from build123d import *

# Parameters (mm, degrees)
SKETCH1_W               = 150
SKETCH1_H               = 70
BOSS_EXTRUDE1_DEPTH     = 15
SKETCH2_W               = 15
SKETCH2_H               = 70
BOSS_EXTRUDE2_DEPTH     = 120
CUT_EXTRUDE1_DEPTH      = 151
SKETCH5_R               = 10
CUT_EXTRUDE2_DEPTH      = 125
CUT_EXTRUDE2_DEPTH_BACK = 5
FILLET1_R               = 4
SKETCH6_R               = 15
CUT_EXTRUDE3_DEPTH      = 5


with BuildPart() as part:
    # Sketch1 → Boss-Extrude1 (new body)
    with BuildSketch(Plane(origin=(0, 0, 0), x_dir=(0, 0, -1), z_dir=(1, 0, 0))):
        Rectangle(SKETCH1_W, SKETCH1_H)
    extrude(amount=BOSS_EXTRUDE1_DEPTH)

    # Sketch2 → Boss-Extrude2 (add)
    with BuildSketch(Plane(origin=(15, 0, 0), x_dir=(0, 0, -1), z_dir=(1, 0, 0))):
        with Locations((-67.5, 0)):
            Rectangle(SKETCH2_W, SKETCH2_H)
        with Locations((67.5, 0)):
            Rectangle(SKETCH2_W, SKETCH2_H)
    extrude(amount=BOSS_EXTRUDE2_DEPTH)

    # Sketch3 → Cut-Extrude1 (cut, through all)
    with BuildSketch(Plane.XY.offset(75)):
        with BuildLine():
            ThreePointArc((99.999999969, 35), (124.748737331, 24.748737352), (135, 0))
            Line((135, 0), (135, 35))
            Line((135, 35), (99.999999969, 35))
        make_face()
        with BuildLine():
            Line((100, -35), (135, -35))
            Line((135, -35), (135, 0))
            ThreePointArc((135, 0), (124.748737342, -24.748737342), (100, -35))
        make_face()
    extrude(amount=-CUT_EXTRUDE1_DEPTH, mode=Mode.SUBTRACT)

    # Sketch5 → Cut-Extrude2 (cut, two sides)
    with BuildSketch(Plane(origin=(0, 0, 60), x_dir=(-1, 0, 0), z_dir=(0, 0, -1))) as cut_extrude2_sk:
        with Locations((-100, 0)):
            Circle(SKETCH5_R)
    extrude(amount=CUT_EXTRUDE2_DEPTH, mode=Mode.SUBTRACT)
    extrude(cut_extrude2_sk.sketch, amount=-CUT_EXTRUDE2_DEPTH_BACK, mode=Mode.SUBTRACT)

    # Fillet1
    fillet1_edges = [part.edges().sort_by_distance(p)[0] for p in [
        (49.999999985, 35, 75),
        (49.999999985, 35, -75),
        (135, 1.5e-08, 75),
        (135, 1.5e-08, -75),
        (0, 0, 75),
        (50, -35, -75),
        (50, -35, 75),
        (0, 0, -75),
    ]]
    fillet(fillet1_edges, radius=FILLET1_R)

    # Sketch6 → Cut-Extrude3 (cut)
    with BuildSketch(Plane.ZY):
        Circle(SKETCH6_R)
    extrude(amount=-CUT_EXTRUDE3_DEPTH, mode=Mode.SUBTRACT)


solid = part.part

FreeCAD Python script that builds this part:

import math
import FreeCAD as App
import Part
import Sketcher

V = App.Vector
Q = App.Units.Quantity


def edges_at(feature, points):
    """Names of the edges that pass closest to the given points."""
    edges = feature.Shape.Edges
    near = lambda p: min(range(len(edges)), key=lambda i: edges[i].distToShape(Part.Vertex(*p))[0])
    return sorted({f"Edge{near(p) + 1}" for p in points})

doc = App.newDocument("Part")
params = doc.addObject("Spreadsheet::Sheet", "Params")
for row, (alias, value) in enumerate([
    ("sketch1_width", "70 mm"),
    ("sketch1_height", "150 mm"),
    ("pad1_length", "15 mm"),
    ("sketch2_width", "70 mm"),
    ("sketch2_height", "15 mm"),
    ("pad2_length", "120 mm"),
    ("sketch3_radius", "35 mm"),
    ("sketch4_diameter", "20 mm"),
    ("pocket2_length", "125 mm"),
    ("pocket2_length2", "5 mm"),
    ("fillet_radius", "4 mm"),
    ("sketch5_diameter", "30 mm"),
    ("pocket3_length", "5 mm"),
], start=1):
    params.set(f"A{row}", alias)
    params.set(f"B{row}", "=" + value)
    params.setAlias(f"B{row}", alias)

body = doc.addObject("PartDesign::Body", "Body")

# Sketch on YZ plane
sketch1 = body.newObject("Sketcher::SketchObject", "Sketch")
sketch1.AttachmentSupport = (doc.getObject("YZ_Plane"), [""])
sketch1.MapMode = "FlatFace"
sketch1.addGeometry([
    Part.LineSegment(V(35, 75, 0), V(-35, 75, 0)),
    Part.LineSegment(V(-35, 75, 0), V(-35, -75, 0)),
    Part.LineSegment(V(-35, -75, 0), V(35, -75, 0)),
    Part.LineSegment(V(35, -75, 0), V(35, 75, 0)),
], False)
sketch1.addConstraint([
    Sketcher.Constraint("Coincident", 0, 2, 1, 1),
    Sketcher.Constraint("Coincident", 1, 2, 2, 1),
    Sketcher.Constraint("Coincident", 2, 2, 3, 1),
    Sketcher.Constraint("Coincident", 3, 2, 0, 1),
    Sketcher.Constraint("Horizontal", 0),
    Sketcher.Constraint("Vertical", 1),
    Sketcher.Constraint("Horizontal", 2),
    Sketcher.Constraint("Vertical", 3),
    Sketcher.Constraint("Symmetric", 0, 2, 2, 2, -1, 1),
    Sketcher.Constraint("DistanceX", 0, 2, 0, 1, Q("70 mm")),
    Sketcher.Constraint("DistanceY", 1, 2, 1, 1, Q("150 mm")),
])
sketch1.setExpression("Constraints[9]", "Params.sketch1_width")
sketch1.setExpression("Constraints[10]", "Params.sketch1_height")
pad1 = body.newObject("PartDesign::Pad", "Pad")
pad1.Profile = sketch1
pad1.setExpression("Length", "Params.pad1_length")

# Sketch on YZ plane
sketch2 = body.newObject("Sketcher::SketchObject", "Sketch001")
sketch2.AttachmentSupport = (doc.getObject("YZ_Plane"), [""])
sketch2.MapMode = "FlatFace"
sketch2.AttachmentOffset = App.Placement(V(0, 0, 15), App.Rotation())
sketch2.addGeometry([
    Part.LineSegment(V(35, 75, 0), V(-35, 75, 0)),  # 0
    Part.LineSegment(V(-35, 75, 0), V(-35, 60, 0)),  # 1
    Part.LineSegment(V(-35, 60, 0), V(35, 60, 0)),  # 2
    Part.LineSegment(V(35, 60, 0), V(35, 75, 0)),  # 3
    Part.LineSegment(V(35, -60, 0), V(-35, -60, 0)),  # 4
    Part.LineSegment(V(-35, -60, 0), V(-35, -75, 0)),  # 5
    Part.LineSegment(V(-35, -75, 0), V(35, -75, 0)),  # 6
    Part.LineSegment(V(35, -75, 0), V(35, -60, 0)),  # 7
], False)
sketch2.addConstraint([
    Sketcher.Constraint("Coincident", 0, 2, 1, 1),
    Sketcher.Constraint("Coincident", 1, 2, 2, 1),
    Sketcher.Constraint("Coincident", 2, 2, 3, 1),
    Sketcher.Constraint("Coincident", 3, 2, 0, 1),
    Sketcher.Constraint("Coincident", 4, 2, 5, 1),
    Sketcher.Constraint("Coincident", 5, 2, 6, 1),
    Sketcher.Constraint("Coincident", 6, 2, 7, 1),
    Sketcher.Constraint("Coincident", 7, 2, 4, 1),
    Sketcher.Constraint("Horizontal", 0),
    Sketcher.Constraint("Vertical", 1),
    Sketcher.Constraint("Horizontal", 2),
    Sketcher.Constraint("Vertical", 3),
    Sketcher.Constraint("Horizontal", 4),
    Sketcher.Constraint("Vertical", 5),
    Sketcher.Constraint("Horizontal", 6),
    Sketcher.Constraint("Vertical", 7),
    Sketcher.Constraint("Symmetric", 2, 2, 4, 2, -1, 1),
    Sketcher.Constraint("Symmetric", 0, 2, 6, 2, -1, 1),
    Sketcher.Constraint("Vertical", 1, 2, 4, 2),
    Sketcher.Constraint("DistanceX", 0, 2, 0, 1, Q("70 mm")),
    Sketcher.Constraint("DistanceY", 1, 2, 1, 1, Q("15 mm")),
    Sketcher.Constraint("DistanceY", -1, 1, 0, 2, Q("75 mm")),
])
sketch2.setExpression("Constraints[19]", "Params.sketch2_width")
sketch2.setExpression("Constraints[20]", "Params.sketch2_height")
pad2 = body.newObject("PartDesign::Pad", "Pad001")
pad2.Profile = sketch2
pad2.setExpression("Length", "Params.pad2_length")

# Sketch on XY plane
sketch3 = body.newObject("Sketcher::SketchObject", "Sketch002")
sketch3.AttachmentSupport = (doc.getObject("XY_Plane"), [""])
sketch3.MapMode = "FlatFace"
sketch3.AttachmentOffset = App.Placement(V(0, 0, 75), App.Rotation())
sketch3.addGeometry([
    Part.ArcOfCircle(Part.Circle(V(100, 0, 0), V(0, 0, 1), 35), math.radians(0), math.radians(90)),  # 0
    Part.LineSegment(V(135, 0, 0), V(135, 35, 0)),  # 1
    Part.LineSegment(V(135, 35, 0), V(100, 35, 0)),  # 2
    Part.LineSegment(V(100, -35, 0), V(135, -35, 0)),  # 3
    Part.LineSegment(V(135, -35, 0), V(135, 0, 0)),  # 4
    Part.ArcOfCircle(Part.Circle(V(100, 0, 0), V(0, 0, 1), 35), math.radians(-90), math.radians(0)),  # 5
], False)
sketch3.addConstraint([
    Sketcher.Constraint("Tangent", 0, 1, 1, 1),
    Sketcher.Constraint("Coincident", 1, 2, 2, 1),
    Sketcher.Constraint("Tangent", 2, 2, 0, 2),
    Sketcher.Constraint("Coincident", 3, 2, 4, 1),
    Sketcher.Constraint("Tangent", 4, 2, 5, 2),
    Sketcher.Constraint("Tangent", 5, 1, 3, 1),
    Sketcher.Constraint("Vertical", 1),
    Sketcher.Constraint("Horizontal", 2),
    Sketcher.Constraint("Horizontal", 3),
    Sketcher.Constraint("Vertical", 4),
    Sketcher.Constraint("Coincident", 5, 3, 0, 3),
    Sketcher.Constraint("Equal", 0, 5),
    Sketcher.Constraint("PointOnObject", 0, 3, -1),
    Sketcher.Constraint("Radius", 0, Q("35 mm")),
    Sketcher.Constraint("DistanceX", -1, 1, 0, 3, Q("100 mm")),
])
sketch3.setExpression("Constraints[13]", "Params.sketch3_radius")
pocket1 = body.newObject("PartDesign::Pocket", "Pocket")
pocket1.Profile = sketch3
pocket1.Type = "ThroughAll"

# Sketch on XY plane
sketch4 = body.newObject("Sketcher::SketchObject", "Sketch003")
sketch4.AttachmentSupport = (doc.getObject("XY_Plane"), [""])
sketch4.MapMode = "FlatFace"
sketch4.AttachmentOffset = App.Placement(V(0, 0, 60), App.Rotation())
sketch4.addGeometry(Part.Circle(V(100, 0, 0), V(0, 0, 1), 10), False)
sketch4.addConstraint([
    Sketcher.Constraint("PointOnObject", 0, 3, -1),
    Sketcher.Constraint("Diameter", 0, Q("20 mm")),
    Sketcher.Constraint("DistanceX", -1, 1, 0, 3, Q("100 mm")),
])
sketch4.setExpression("Constraints[1]", "Params.sketch4_diameter")
pocket2 = body.newObject("PartDesign::Pocket", "Pocket001")
pocket2.Profile = sketch4
pocket2.Type = "TwoLengths"
pocket2.setExpression("Length", "Params.pocket2_length")
pocket2.setExpression("Length2", "Params.pocket2_length2")
doc.recompute()

fillet = body.newObject("PartDesign::Fillet", "Fillet")
fillet.Base = (pocket2, edges_at(pocket2, [
    (50, 35, 75),
    (50, 35, -75),
    (124.749, -24.749, 75),
    (124.749, 24.749, -75),
    (0, 0, 75),
    (50, -35, -75),
    (50, -35, 75),
    (0, 0, -75),
]))
fillet.setExpression("Radius", "Params.fillet_radius")

# Sketch on YZ plane
sketch5 = body.newObject("Sketcher::SketchObject", "Sketch004")
sketch5.AttachmentSupport = (doc.getObject("YZ_Plane"), [""])
sketch5.MapMode = "FlatFace"
sketch5.addGeometry(Part.Circle(V(0, 0, 0), V(0, 0, 1), 15), False)
sketch5.addConstraint([
    Sketcher.Constraint("Coincident", 0, 3, -1, 1),
    Sketcher.Constraint("Diameter", 0, Q("30 mm")),
])
sketch5.setExpression("Constraints[1]", "Params.sketch5_diameter")
pocket3 = body.newObject("PartDesign::Pocket", "Pocket002")
pocket3.Profile = sketch5
pocket3.setExpression("Length", "Params.pocket3_length")
pocket3.Reversed = True

doc.recompute()
